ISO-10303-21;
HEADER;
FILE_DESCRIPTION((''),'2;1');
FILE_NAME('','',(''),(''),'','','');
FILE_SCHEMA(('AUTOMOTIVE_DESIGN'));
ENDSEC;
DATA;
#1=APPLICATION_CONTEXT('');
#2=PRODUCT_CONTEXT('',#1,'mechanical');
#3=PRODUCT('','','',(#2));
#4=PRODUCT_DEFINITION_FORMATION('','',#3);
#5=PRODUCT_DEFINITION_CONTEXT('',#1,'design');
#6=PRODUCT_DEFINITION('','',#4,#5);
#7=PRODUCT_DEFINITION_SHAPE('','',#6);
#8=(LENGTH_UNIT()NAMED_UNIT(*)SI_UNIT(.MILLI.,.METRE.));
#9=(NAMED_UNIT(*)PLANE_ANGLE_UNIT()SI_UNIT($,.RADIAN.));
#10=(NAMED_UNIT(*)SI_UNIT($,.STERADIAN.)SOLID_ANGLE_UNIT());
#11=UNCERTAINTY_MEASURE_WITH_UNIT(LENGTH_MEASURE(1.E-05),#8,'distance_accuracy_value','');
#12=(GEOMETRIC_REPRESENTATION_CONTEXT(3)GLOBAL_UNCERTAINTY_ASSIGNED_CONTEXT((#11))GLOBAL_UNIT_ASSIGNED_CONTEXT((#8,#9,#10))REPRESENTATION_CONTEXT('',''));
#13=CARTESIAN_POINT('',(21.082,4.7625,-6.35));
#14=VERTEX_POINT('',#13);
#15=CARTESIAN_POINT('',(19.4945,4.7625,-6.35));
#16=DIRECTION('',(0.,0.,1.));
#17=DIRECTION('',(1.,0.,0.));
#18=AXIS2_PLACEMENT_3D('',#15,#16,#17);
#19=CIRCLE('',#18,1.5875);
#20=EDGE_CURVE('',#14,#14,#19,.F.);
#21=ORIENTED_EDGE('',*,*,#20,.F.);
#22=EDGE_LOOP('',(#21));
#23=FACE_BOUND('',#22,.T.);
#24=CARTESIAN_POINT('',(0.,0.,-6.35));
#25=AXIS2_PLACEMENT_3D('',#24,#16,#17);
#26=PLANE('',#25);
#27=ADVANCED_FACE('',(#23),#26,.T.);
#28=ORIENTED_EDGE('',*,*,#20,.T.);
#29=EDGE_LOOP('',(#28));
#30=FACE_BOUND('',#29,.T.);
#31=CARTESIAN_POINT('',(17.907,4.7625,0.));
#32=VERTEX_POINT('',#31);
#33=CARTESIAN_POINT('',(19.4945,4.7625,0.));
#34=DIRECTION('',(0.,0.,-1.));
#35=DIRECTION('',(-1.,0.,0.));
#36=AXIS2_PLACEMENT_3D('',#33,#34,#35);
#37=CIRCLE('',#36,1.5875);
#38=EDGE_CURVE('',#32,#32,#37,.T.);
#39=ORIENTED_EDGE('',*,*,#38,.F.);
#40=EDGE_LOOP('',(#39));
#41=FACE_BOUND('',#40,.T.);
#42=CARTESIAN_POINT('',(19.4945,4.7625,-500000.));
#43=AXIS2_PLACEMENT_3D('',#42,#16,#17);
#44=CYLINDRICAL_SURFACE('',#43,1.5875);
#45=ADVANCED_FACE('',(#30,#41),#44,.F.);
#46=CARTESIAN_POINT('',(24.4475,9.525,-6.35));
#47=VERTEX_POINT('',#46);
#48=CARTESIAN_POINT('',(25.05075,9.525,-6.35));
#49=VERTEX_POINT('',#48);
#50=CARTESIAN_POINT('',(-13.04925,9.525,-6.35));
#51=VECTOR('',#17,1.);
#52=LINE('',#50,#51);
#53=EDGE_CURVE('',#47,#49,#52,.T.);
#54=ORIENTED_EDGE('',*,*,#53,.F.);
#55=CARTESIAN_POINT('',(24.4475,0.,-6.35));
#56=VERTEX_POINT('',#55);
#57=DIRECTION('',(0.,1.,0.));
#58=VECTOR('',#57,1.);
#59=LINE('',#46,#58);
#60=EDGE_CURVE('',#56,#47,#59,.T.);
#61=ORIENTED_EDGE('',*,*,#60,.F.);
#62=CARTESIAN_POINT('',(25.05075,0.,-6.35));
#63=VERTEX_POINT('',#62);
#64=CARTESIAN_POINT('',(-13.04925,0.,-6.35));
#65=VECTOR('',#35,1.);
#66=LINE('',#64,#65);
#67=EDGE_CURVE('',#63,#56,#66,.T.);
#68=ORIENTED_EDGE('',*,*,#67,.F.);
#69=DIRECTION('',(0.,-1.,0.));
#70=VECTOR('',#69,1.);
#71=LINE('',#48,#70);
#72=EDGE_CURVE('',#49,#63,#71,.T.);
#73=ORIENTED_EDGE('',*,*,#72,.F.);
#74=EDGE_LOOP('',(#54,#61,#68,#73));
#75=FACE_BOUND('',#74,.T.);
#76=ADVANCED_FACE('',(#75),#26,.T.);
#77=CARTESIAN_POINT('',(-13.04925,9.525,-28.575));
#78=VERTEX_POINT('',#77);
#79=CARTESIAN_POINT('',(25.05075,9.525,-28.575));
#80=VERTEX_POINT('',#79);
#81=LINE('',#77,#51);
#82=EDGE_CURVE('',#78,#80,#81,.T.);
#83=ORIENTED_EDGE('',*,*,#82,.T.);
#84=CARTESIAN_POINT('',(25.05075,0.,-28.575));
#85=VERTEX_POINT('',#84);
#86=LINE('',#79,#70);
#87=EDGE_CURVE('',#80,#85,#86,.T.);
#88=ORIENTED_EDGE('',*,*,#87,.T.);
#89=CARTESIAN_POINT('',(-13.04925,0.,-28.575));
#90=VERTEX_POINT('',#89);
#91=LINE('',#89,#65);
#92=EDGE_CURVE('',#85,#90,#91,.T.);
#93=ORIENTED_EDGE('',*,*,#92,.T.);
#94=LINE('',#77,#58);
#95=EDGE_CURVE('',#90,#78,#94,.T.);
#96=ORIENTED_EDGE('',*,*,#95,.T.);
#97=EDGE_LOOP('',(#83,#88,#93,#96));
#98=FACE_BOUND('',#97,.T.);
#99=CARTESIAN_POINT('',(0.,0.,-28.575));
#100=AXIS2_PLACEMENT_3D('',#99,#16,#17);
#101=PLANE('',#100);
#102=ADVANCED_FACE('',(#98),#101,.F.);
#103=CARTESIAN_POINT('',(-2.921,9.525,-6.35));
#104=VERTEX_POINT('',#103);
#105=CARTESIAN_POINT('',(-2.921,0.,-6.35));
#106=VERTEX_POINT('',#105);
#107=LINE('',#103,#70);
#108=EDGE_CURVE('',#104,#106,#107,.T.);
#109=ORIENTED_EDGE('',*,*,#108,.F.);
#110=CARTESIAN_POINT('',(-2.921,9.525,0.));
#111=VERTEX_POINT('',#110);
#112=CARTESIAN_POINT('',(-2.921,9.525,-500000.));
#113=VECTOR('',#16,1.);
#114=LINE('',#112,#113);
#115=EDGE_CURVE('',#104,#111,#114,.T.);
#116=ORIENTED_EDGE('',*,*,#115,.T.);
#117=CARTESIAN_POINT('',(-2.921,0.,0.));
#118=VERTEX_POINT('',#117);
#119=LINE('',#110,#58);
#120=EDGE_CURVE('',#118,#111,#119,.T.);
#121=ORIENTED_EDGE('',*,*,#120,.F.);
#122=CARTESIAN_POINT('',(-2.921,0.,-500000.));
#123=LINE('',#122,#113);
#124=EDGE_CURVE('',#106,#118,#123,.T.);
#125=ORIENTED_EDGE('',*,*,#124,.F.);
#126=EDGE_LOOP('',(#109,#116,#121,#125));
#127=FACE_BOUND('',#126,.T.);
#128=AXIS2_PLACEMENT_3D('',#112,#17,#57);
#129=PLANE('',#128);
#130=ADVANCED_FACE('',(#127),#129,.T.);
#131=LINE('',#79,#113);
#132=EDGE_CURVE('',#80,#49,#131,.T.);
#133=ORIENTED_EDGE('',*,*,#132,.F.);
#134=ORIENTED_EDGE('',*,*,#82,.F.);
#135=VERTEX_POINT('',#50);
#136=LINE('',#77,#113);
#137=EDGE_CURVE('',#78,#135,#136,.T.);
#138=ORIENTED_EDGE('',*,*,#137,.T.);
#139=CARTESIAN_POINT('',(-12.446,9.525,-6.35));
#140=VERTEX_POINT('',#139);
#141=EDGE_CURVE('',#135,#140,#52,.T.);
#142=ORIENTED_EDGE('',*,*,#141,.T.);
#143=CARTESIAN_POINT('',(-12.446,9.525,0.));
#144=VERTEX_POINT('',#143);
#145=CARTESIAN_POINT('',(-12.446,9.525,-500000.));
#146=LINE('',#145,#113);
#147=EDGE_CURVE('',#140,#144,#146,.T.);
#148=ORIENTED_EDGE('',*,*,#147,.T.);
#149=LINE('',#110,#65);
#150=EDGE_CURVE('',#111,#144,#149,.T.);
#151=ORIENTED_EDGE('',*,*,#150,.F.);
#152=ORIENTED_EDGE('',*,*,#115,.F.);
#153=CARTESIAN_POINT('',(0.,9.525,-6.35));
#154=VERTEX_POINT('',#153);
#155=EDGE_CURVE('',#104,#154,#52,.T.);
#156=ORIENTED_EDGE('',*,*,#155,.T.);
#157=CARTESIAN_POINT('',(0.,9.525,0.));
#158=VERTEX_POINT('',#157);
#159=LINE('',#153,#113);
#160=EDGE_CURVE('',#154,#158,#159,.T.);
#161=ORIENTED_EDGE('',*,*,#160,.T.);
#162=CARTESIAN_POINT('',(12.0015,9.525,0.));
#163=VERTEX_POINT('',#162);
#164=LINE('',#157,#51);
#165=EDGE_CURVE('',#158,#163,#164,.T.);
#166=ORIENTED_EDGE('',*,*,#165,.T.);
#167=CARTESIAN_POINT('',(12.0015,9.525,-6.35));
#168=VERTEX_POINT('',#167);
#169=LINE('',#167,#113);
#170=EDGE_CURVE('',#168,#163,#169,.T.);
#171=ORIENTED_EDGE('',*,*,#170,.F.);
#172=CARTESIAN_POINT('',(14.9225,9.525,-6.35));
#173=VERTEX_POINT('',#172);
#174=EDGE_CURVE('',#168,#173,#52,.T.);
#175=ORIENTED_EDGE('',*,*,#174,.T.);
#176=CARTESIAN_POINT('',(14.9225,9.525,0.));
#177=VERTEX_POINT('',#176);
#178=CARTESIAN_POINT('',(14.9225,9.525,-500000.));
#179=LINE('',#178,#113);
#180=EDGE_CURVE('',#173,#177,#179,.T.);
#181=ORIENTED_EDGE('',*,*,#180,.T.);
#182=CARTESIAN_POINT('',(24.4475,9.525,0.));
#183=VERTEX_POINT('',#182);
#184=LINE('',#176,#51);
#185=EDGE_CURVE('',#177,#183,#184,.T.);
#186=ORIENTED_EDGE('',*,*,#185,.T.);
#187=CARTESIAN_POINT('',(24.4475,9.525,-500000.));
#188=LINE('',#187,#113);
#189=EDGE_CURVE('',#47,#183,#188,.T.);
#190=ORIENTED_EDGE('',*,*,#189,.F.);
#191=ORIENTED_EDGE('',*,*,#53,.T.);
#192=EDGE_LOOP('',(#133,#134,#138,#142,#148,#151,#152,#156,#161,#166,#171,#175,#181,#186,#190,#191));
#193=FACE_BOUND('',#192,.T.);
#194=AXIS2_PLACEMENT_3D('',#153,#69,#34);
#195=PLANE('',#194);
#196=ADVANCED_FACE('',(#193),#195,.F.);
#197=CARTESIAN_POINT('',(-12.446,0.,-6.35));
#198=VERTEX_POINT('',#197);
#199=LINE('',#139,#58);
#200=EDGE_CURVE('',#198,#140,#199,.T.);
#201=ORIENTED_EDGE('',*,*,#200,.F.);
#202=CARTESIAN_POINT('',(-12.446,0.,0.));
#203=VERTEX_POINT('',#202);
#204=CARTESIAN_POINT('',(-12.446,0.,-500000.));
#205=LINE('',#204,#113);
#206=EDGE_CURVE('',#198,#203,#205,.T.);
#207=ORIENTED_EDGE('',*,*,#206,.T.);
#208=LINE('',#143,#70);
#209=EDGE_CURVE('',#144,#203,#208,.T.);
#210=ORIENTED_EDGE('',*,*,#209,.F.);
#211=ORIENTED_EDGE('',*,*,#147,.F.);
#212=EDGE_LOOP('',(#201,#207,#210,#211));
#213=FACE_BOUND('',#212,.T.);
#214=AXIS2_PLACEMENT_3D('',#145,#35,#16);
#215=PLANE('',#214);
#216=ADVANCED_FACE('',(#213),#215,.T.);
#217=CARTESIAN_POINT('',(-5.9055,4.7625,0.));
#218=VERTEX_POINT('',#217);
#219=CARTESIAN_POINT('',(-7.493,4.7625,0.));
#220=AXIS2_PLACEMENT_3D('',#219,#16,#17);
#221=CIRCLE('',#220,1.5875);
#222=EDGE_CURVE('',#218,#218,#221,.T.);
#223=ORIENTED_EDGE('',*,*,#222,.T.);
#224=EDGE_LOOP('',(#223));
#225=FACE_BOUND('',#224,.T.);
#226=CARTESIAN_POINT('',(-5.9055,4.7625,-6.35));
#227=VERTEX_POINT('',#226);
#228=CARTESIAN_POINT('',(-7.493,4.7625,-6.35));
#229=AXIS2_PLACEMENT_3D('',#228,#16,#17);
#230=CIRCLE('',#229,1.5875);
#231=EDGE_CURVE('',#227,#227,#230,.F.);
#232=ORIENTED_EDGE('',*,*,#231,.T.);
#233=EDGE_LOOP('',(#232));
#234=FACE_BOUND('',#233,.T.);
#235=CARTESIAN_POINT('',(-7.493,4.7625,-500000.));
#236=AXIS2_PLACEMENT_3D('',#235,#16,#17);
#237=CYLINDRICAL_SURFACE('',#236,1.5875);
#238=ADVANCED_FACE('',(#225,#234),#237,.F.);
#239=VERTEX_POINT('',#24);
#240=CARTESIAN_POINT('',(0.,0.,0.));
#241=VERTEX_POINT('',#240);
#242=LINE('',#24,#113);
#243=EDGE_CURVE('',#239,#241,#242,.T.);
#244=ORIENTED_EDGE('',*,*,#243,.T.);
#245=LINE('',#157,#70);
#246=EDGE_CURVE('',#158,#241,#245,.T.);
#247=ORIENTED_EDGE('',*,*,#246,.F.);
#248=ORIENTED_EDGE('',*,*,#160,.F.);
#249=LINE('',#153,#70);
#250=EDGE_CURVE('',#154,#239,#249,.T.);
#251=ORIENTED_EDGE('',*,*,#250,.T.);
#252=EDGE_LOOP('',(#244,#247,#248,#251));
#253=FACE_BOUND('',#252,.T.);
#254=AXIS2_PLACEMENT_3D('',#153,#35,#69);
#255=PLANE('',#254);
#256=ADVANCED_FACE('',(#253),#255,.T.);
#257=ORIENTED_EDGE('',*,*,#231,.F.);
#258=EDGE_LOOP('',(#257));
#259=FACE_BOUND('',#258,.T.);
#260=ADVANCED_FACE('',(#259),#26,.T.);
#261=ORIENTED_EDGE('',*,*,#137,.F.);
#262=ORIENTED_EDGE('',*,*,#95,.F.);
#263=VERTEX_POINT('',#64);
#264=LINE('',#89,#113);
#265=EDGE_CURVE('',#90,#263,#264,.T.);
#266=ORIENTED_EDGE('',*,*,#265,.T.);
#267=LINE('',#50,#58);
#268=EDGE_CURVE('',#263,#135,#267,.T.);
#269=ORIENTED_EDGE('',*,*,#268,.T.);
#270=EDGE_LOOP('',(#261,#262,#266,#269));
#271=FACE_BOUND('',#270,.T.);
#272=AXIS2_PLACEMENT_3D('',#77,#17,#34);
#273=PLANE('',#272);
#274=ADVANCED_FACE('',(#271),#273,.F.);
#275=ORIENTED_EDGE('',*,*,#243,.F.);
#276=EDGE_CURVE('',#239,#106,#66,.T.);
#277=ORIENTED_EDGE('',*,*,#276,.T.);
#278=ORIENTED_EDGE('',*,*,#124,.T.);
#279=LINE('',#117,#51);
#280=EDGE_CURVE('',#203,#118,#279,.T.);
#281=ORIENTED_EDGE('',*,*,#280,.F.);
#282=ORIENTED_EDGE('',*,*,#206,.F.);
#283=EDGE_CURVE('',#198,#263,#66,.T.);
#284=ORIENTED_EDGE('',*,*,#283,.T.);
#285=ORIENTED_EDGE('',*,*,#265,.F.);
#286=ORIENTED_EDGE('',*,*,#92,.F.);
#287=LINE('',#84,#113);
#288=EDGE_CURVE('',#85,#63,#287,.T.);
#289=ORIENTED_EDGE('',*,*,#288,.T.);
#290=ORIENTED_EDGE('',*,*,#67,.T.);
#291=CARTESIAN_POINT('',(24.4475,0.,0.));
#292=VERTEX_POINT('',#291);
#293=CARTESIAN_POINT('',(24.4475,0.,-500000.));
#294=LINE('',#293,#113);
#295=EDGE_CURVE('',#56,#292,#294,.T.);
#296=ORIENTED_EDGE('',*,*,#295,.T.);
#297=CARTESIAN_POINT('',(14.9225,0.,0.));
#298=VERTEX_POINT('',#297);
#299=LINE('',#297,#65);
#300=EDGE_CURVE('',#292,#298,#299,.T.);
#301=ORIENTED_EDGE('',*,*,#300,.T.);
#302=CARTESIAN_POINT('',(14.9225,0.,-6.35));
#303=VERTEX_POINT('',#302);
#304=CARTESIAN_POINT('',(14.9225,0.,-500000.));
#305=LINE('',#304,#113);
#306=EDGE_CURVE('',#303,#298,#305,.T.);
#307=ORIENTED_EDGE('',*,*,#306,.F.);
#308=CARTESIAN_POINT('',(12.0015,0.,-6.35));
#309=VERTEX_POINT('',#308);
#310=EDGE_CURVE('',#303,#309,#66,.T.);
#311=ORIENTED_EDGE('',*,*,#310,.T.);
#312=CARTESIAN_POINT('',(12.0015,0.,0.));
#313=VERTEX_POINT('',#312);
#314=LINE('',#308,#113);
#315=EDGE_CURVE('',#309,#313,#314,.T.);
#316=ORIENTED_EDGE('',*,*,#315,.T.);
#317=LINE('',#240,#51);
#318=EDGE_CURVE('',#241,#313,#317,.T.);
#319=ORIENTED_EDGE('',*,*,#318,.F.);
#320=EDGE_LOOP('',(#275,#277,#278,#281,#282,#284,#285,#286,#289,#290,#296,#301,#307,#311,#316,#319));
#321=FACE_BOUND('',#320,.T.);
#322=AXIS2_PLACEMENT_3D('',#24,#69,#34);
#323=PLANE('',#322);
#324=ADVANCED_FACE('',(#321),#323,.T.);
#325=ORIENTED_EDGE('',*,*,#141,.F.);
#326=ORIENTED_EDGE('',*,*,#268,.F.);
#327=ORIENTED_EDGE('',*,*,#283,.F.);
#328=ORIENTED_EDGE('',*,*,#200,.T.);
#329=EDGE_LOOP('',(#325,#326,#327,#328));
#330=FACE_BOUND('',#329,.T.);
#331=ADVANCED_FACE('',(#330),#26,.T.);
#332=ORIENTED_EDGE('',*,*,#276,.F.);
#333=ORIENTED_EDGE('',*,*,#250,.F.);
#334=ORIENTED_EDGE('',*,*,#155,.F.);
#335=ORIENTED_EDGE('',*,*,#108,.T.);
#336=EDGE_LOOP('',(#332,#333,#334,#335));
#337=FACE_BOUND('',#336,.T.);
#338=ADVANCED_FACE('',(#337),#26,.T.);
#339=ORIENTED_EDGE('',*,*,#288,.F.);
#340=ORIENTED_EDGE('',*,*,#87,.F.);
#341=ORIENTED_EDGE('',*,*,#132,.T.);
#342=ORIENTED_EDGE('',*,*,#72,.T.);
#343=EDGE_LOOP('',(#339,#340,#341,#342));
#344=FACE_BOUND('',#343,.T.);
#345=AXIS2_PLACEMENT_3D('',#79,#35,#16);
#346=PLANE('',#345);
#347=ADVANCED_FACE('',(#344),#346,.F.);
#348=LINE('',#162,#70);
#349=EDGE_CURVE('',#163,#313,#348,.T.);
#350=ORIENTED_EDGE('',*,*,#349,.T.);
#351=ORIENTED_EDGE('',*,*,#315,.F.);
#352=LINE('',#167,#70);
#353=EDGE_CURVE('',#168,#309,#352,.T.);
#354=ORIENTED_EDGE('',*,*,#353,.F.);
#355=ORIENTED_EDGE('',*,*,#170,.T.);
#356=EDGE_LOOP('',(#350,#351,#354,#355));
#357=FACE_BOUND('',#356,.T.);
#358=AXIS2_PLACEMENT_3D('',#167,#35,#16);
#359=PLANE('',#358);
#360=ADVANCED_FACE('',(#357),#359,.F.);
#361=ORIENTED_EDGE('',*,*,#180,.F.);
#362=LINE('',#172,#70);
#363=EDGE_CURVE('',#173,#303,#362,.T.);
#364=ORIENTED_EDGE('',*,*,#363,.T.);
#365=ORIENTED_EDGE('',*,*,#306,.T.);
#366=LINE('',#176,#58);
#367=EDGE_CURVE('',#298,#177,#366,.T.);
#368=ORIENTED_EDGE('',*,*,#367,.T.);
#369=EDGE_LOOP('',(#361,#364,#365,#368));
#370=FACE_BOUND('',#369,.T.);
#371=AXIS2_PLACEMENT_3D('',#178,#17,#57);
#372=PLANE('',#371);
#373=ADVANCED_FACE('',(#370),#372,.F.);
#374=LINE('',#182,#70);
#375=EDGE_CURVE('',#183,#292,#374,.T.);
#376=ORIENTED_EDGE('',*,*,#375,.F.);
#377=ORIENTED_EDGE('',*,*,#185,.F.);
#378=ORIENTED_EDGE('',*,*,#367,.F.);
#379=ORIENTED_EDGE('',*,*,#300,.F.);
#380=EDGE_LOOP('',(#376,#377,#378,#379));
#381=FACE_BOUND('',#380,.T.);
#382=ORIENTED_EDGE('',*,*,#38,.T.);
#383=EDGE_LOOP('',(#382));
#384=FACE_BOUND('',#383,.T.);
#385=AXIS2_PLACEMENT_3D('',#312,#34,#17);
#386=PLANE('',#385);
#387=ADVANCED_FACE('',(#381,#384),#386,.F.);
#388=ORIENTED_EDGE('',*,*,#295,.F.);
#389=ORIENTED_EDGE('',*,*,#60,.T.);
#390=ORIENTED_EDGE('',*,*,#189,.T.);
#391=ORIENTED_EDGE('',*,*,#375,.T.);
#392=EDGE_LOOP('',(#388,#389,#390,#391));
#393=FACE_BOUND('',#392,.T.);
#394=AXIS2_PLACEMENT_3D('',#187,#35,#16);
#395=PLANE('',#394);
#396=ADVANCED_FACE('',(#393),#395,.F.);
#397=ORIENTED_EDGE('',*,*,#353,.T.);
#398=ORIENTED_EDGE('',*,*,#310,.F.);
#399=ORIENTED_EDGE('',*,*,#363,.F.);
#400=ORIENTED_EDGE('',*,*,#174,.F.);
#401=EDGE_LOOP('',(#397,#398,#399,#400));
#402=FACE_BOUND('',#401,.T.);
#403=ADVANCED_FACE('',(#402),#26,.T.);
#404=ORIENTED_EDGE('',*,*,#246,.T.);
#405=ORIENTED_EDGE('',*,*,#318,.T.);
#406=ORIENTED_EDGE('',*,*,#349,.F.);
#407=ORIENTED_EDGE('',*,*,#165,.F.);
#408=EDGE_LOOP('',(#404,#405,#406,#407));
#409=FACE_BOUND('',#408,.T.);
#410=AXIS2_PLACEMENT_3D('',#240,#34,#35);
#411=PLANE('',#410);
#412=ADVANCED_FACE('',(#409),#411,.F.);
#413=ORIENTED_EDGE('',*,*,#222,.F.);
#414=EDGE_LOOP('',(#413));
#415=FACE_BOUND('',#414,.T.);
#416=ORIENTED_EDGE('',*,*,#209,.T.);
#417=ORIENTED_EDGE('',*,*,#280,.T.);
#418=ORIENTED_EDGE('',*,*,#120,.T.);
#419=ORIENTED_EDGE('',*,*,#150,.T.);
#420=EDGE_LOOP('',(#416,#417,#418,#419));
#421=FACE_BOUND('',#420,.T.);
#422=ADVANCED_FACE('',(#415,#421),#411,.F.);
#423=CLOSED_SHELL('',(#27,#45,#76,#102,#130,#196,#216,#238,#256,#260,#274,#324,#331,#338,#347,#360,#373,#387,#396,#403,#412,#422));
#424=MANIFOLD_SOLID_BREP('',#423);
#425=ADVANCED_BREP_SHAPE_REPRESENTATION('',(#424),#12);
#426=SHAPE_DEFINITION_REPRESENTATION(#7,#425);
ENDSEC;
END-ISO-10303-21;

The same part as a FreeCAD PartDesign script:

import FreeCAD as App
import Part
import Sketcher
Q = App.Units.Quantity

doc = App.newDocument("Part")
body = doc.addObject("PartDesign::Body", "Body")

# Sketch on XY plane
sketch1 = body.newObject("Sketcher::SketchObject", "Sketch")
sketch1.AttachmentSupport = (doc.getObject("XY_Plane"), [""])
sketch1.MapMode = "FlatFace"
sketch1.addGeometry([
    Part.LineSegment(App.Vector(0, 9.525, 0), App.Vector(0, 0, 0)),
    Part.LineSegment(App.Vector(0, 0, 0), App.Vector(12.0015, 0, 0)),
    Part.LineSegment(App.Vector(12.0015, 0, 0), App.Vector(12.0015, 9.525, 0)),
    Part.LineSegment(App.Vector(12.0015, 9.525, 0), App.Vector(0, 9.525, 0)),
], False)
sketch1.addConstraint([
    Sketcher.Constraint("Coincident", 0, 2, 1, 1),
    Sketcher.Constraint("Coincident", 1, 2, 2, 1),
    Sketcher.Constraint("Coincident", 2, 2, 3, 1),
    Sketcher.Constraint("Coincident", 3, 2, 0, 1),
    Sketcher.Constraint("Vertical", 0),
    Sketcher.Constraint("Horizontal", 1),
    Sketcher.Constraint("Vertical", 2),
    Sketcher.Constraint("Horizontal", 3),
    Sketcher.Constraint("Coincident", 0, 2, -1, 1),
    Sketcher.Constraint("DistanceY", 0, 2, 0, 1, Q("0.375 in")),
    Sketcher.Constraint("DistanceX", 1, 1, 1, 2, Q("0.4725 in")),
])
pad1 = body.newObject("PartDesign::Pad", "Pad")
pad1.Profile = sketch1
pad1.Length = Q("0.25 in")
pad1.Reversed = True

# Sketch on XY plane
sketch2 = body.newObject("Sketcher::SketchObject", "Sketch001")
sketch2.AttachmentSupport = (doc.getObject("XY_Plane"), [""])
sketch2.MapMode = "FlatFace"
sketch2.AttachmentOffset = App.Placement(App.Vector(0, 0, -0.25 * 25.4), App.Rotation())
sketch2.addGeometry([
    Part.LineSegment(App.Vector(25.05075, 9.525, 0), App.Vector(25.05075, 0, 0)),
    Part.LineSegment(App.Vector(25.05075, 0, 0), App.Vector(-13.04925, 0, 0)),
    Part.LineSegment(App.Vector(-13.04925, 0, 0), App.Vector(-13.04925, 9.525, 0)),
    Part.LineSegment(App.Vector(-13.04925, 9.525, 0), App.Vector(25.05075, 9.525, 0)),
], False)
sketch2.addConstraint([
    Sketcher.Constraint("Coincident", 0, 2, 1, 1),
    Sketcher.Constraint("Coincident", 1, 2, 2, 1),
    Sketcher.Constraint("Coincident", 2, 2, 3, 1),
    Sketcher.Constraint("Coincident", 3, 2, 0, 1),
    Sketcher.Constraint("Vertical", 0),
    Sketcher.Constraint("Horizontal", 1),
    Sketcher.Constraint("Vertical", 2),
    Sketcher.Constraint("Horizontal", 3),
    Sketcher.Constraint("PointOnObject", 0, 2, -1),
    Sketcher.Constraint("DistanceX", 1, 2, 1, 1, Q("1.5 in")),
    Sketcher.Constraint("DistanceY", 0, 2, 0, 1, Q("0.375 in")),
    Sketcher.Constraint("DistanceX", -1, 1, 0, 2, Q("25.05075 mm")),
])
pad2 = body.newObject("PartDesign::Pad", "Pad001")
pad2.Profile = sketch2
pad2.Length = Q("0.875 in")
pad2.Reversed = True

# Sketch on XY plane
sketch3 = body.newObject("Sketcher::SketchObject", "Sketch002")
sketch3.AttachmentSupport = (doc.getObject("XY_Plane"), [""])
sketch3.MapMode = "FlatFace"
sketch3.addGeometry([
    Part.LineSegment(App.Vector(-12.446, 9.525, 0), App.Vector(-12.446, 0, 0)),  # 0
    Part.LineSegment(App.Vector(-12.446, 0, 0), App.Vector(-2.921, 0, 0)),  # 1
    Part.LineSegment(App.Vector(-2.921, 0, 0), App.Vector(-2.921, 9.525, 0)),  # 2
    Part.LineSegment(App.Vector(-2.921, 9.525, 0), App.Vector(-12.446, 9.525, 0)),  # 3
    Part.Circle(App.Vector(-7.493, 4.7625, 0), App.Vector(0, 0, 1), 1.5875),  # 4
], False)
sketch3.addConstraint([
    Sketcher.Constraint("Coincident", 0, 2, 1, 1),
    Sketcher.Constraint("Coincident", 1, 2, 2, 1),
    Sketcher.Constraint("Coincident", 2, 2, 3, 1),
    Sketcher.Constraint("Coincident", 3, 2, 0, 1),
    Sketcher.Constraint("Vertical", 0),
    Sketcher.Constraint("Horizontal", 1),
    Sketcher.Constraint("Vertical", 2),
    Sketcher.Constraint("Horizontal", 3),
    Sketcher.Constraint("PointOnObject", 0, 2, -1),
    Sketcher.Constraint("Equal", 3, 0),
    Sketcher.Constraint("Diameter", 4, Q("0.125 in")),
    Sketcher.Constraint("DistanceX", 1, 1, 1, 2, Q("0.375 in")),
    Sketcher.Constraint("DistanceX", 0, 2, -1, 1, Q("0.49 in")),
    Sketcher.Constraint("DistanceX", 4, 3, 1, 2, Q("0.18 in")),
    Sketcher.Constraint("DistanceY", -1, 1, 4, 3, Q("0.1875 in")),
])
pad3 = body.newObject("PartDesign::Pad", "Pad002")
pad3.Profile = sketch3
pad3.Length = Q("0.25 in")
pad3.Reversed = True
doc.recompute()

datumplane = body.newObject("PartDesign::Plane", "DatumPlane")
datumplane.AttachmentSupport = (doc.getObject("YZ_Plane"), [""])
datumplane.MapMode = "FlatFace"
datumplane.AttachmentOffset = App.Placement(App.Vector(0, 0, 6.00075), App.Rotation())
mirrored = body.newObject("PartDesign::Mirrored", "Mirrored")
mirrored.Originals = [pad3]
mirrored.MirrorPlane = (datumplane, [""])
body.Tip = mirrored

doc.recompute()
